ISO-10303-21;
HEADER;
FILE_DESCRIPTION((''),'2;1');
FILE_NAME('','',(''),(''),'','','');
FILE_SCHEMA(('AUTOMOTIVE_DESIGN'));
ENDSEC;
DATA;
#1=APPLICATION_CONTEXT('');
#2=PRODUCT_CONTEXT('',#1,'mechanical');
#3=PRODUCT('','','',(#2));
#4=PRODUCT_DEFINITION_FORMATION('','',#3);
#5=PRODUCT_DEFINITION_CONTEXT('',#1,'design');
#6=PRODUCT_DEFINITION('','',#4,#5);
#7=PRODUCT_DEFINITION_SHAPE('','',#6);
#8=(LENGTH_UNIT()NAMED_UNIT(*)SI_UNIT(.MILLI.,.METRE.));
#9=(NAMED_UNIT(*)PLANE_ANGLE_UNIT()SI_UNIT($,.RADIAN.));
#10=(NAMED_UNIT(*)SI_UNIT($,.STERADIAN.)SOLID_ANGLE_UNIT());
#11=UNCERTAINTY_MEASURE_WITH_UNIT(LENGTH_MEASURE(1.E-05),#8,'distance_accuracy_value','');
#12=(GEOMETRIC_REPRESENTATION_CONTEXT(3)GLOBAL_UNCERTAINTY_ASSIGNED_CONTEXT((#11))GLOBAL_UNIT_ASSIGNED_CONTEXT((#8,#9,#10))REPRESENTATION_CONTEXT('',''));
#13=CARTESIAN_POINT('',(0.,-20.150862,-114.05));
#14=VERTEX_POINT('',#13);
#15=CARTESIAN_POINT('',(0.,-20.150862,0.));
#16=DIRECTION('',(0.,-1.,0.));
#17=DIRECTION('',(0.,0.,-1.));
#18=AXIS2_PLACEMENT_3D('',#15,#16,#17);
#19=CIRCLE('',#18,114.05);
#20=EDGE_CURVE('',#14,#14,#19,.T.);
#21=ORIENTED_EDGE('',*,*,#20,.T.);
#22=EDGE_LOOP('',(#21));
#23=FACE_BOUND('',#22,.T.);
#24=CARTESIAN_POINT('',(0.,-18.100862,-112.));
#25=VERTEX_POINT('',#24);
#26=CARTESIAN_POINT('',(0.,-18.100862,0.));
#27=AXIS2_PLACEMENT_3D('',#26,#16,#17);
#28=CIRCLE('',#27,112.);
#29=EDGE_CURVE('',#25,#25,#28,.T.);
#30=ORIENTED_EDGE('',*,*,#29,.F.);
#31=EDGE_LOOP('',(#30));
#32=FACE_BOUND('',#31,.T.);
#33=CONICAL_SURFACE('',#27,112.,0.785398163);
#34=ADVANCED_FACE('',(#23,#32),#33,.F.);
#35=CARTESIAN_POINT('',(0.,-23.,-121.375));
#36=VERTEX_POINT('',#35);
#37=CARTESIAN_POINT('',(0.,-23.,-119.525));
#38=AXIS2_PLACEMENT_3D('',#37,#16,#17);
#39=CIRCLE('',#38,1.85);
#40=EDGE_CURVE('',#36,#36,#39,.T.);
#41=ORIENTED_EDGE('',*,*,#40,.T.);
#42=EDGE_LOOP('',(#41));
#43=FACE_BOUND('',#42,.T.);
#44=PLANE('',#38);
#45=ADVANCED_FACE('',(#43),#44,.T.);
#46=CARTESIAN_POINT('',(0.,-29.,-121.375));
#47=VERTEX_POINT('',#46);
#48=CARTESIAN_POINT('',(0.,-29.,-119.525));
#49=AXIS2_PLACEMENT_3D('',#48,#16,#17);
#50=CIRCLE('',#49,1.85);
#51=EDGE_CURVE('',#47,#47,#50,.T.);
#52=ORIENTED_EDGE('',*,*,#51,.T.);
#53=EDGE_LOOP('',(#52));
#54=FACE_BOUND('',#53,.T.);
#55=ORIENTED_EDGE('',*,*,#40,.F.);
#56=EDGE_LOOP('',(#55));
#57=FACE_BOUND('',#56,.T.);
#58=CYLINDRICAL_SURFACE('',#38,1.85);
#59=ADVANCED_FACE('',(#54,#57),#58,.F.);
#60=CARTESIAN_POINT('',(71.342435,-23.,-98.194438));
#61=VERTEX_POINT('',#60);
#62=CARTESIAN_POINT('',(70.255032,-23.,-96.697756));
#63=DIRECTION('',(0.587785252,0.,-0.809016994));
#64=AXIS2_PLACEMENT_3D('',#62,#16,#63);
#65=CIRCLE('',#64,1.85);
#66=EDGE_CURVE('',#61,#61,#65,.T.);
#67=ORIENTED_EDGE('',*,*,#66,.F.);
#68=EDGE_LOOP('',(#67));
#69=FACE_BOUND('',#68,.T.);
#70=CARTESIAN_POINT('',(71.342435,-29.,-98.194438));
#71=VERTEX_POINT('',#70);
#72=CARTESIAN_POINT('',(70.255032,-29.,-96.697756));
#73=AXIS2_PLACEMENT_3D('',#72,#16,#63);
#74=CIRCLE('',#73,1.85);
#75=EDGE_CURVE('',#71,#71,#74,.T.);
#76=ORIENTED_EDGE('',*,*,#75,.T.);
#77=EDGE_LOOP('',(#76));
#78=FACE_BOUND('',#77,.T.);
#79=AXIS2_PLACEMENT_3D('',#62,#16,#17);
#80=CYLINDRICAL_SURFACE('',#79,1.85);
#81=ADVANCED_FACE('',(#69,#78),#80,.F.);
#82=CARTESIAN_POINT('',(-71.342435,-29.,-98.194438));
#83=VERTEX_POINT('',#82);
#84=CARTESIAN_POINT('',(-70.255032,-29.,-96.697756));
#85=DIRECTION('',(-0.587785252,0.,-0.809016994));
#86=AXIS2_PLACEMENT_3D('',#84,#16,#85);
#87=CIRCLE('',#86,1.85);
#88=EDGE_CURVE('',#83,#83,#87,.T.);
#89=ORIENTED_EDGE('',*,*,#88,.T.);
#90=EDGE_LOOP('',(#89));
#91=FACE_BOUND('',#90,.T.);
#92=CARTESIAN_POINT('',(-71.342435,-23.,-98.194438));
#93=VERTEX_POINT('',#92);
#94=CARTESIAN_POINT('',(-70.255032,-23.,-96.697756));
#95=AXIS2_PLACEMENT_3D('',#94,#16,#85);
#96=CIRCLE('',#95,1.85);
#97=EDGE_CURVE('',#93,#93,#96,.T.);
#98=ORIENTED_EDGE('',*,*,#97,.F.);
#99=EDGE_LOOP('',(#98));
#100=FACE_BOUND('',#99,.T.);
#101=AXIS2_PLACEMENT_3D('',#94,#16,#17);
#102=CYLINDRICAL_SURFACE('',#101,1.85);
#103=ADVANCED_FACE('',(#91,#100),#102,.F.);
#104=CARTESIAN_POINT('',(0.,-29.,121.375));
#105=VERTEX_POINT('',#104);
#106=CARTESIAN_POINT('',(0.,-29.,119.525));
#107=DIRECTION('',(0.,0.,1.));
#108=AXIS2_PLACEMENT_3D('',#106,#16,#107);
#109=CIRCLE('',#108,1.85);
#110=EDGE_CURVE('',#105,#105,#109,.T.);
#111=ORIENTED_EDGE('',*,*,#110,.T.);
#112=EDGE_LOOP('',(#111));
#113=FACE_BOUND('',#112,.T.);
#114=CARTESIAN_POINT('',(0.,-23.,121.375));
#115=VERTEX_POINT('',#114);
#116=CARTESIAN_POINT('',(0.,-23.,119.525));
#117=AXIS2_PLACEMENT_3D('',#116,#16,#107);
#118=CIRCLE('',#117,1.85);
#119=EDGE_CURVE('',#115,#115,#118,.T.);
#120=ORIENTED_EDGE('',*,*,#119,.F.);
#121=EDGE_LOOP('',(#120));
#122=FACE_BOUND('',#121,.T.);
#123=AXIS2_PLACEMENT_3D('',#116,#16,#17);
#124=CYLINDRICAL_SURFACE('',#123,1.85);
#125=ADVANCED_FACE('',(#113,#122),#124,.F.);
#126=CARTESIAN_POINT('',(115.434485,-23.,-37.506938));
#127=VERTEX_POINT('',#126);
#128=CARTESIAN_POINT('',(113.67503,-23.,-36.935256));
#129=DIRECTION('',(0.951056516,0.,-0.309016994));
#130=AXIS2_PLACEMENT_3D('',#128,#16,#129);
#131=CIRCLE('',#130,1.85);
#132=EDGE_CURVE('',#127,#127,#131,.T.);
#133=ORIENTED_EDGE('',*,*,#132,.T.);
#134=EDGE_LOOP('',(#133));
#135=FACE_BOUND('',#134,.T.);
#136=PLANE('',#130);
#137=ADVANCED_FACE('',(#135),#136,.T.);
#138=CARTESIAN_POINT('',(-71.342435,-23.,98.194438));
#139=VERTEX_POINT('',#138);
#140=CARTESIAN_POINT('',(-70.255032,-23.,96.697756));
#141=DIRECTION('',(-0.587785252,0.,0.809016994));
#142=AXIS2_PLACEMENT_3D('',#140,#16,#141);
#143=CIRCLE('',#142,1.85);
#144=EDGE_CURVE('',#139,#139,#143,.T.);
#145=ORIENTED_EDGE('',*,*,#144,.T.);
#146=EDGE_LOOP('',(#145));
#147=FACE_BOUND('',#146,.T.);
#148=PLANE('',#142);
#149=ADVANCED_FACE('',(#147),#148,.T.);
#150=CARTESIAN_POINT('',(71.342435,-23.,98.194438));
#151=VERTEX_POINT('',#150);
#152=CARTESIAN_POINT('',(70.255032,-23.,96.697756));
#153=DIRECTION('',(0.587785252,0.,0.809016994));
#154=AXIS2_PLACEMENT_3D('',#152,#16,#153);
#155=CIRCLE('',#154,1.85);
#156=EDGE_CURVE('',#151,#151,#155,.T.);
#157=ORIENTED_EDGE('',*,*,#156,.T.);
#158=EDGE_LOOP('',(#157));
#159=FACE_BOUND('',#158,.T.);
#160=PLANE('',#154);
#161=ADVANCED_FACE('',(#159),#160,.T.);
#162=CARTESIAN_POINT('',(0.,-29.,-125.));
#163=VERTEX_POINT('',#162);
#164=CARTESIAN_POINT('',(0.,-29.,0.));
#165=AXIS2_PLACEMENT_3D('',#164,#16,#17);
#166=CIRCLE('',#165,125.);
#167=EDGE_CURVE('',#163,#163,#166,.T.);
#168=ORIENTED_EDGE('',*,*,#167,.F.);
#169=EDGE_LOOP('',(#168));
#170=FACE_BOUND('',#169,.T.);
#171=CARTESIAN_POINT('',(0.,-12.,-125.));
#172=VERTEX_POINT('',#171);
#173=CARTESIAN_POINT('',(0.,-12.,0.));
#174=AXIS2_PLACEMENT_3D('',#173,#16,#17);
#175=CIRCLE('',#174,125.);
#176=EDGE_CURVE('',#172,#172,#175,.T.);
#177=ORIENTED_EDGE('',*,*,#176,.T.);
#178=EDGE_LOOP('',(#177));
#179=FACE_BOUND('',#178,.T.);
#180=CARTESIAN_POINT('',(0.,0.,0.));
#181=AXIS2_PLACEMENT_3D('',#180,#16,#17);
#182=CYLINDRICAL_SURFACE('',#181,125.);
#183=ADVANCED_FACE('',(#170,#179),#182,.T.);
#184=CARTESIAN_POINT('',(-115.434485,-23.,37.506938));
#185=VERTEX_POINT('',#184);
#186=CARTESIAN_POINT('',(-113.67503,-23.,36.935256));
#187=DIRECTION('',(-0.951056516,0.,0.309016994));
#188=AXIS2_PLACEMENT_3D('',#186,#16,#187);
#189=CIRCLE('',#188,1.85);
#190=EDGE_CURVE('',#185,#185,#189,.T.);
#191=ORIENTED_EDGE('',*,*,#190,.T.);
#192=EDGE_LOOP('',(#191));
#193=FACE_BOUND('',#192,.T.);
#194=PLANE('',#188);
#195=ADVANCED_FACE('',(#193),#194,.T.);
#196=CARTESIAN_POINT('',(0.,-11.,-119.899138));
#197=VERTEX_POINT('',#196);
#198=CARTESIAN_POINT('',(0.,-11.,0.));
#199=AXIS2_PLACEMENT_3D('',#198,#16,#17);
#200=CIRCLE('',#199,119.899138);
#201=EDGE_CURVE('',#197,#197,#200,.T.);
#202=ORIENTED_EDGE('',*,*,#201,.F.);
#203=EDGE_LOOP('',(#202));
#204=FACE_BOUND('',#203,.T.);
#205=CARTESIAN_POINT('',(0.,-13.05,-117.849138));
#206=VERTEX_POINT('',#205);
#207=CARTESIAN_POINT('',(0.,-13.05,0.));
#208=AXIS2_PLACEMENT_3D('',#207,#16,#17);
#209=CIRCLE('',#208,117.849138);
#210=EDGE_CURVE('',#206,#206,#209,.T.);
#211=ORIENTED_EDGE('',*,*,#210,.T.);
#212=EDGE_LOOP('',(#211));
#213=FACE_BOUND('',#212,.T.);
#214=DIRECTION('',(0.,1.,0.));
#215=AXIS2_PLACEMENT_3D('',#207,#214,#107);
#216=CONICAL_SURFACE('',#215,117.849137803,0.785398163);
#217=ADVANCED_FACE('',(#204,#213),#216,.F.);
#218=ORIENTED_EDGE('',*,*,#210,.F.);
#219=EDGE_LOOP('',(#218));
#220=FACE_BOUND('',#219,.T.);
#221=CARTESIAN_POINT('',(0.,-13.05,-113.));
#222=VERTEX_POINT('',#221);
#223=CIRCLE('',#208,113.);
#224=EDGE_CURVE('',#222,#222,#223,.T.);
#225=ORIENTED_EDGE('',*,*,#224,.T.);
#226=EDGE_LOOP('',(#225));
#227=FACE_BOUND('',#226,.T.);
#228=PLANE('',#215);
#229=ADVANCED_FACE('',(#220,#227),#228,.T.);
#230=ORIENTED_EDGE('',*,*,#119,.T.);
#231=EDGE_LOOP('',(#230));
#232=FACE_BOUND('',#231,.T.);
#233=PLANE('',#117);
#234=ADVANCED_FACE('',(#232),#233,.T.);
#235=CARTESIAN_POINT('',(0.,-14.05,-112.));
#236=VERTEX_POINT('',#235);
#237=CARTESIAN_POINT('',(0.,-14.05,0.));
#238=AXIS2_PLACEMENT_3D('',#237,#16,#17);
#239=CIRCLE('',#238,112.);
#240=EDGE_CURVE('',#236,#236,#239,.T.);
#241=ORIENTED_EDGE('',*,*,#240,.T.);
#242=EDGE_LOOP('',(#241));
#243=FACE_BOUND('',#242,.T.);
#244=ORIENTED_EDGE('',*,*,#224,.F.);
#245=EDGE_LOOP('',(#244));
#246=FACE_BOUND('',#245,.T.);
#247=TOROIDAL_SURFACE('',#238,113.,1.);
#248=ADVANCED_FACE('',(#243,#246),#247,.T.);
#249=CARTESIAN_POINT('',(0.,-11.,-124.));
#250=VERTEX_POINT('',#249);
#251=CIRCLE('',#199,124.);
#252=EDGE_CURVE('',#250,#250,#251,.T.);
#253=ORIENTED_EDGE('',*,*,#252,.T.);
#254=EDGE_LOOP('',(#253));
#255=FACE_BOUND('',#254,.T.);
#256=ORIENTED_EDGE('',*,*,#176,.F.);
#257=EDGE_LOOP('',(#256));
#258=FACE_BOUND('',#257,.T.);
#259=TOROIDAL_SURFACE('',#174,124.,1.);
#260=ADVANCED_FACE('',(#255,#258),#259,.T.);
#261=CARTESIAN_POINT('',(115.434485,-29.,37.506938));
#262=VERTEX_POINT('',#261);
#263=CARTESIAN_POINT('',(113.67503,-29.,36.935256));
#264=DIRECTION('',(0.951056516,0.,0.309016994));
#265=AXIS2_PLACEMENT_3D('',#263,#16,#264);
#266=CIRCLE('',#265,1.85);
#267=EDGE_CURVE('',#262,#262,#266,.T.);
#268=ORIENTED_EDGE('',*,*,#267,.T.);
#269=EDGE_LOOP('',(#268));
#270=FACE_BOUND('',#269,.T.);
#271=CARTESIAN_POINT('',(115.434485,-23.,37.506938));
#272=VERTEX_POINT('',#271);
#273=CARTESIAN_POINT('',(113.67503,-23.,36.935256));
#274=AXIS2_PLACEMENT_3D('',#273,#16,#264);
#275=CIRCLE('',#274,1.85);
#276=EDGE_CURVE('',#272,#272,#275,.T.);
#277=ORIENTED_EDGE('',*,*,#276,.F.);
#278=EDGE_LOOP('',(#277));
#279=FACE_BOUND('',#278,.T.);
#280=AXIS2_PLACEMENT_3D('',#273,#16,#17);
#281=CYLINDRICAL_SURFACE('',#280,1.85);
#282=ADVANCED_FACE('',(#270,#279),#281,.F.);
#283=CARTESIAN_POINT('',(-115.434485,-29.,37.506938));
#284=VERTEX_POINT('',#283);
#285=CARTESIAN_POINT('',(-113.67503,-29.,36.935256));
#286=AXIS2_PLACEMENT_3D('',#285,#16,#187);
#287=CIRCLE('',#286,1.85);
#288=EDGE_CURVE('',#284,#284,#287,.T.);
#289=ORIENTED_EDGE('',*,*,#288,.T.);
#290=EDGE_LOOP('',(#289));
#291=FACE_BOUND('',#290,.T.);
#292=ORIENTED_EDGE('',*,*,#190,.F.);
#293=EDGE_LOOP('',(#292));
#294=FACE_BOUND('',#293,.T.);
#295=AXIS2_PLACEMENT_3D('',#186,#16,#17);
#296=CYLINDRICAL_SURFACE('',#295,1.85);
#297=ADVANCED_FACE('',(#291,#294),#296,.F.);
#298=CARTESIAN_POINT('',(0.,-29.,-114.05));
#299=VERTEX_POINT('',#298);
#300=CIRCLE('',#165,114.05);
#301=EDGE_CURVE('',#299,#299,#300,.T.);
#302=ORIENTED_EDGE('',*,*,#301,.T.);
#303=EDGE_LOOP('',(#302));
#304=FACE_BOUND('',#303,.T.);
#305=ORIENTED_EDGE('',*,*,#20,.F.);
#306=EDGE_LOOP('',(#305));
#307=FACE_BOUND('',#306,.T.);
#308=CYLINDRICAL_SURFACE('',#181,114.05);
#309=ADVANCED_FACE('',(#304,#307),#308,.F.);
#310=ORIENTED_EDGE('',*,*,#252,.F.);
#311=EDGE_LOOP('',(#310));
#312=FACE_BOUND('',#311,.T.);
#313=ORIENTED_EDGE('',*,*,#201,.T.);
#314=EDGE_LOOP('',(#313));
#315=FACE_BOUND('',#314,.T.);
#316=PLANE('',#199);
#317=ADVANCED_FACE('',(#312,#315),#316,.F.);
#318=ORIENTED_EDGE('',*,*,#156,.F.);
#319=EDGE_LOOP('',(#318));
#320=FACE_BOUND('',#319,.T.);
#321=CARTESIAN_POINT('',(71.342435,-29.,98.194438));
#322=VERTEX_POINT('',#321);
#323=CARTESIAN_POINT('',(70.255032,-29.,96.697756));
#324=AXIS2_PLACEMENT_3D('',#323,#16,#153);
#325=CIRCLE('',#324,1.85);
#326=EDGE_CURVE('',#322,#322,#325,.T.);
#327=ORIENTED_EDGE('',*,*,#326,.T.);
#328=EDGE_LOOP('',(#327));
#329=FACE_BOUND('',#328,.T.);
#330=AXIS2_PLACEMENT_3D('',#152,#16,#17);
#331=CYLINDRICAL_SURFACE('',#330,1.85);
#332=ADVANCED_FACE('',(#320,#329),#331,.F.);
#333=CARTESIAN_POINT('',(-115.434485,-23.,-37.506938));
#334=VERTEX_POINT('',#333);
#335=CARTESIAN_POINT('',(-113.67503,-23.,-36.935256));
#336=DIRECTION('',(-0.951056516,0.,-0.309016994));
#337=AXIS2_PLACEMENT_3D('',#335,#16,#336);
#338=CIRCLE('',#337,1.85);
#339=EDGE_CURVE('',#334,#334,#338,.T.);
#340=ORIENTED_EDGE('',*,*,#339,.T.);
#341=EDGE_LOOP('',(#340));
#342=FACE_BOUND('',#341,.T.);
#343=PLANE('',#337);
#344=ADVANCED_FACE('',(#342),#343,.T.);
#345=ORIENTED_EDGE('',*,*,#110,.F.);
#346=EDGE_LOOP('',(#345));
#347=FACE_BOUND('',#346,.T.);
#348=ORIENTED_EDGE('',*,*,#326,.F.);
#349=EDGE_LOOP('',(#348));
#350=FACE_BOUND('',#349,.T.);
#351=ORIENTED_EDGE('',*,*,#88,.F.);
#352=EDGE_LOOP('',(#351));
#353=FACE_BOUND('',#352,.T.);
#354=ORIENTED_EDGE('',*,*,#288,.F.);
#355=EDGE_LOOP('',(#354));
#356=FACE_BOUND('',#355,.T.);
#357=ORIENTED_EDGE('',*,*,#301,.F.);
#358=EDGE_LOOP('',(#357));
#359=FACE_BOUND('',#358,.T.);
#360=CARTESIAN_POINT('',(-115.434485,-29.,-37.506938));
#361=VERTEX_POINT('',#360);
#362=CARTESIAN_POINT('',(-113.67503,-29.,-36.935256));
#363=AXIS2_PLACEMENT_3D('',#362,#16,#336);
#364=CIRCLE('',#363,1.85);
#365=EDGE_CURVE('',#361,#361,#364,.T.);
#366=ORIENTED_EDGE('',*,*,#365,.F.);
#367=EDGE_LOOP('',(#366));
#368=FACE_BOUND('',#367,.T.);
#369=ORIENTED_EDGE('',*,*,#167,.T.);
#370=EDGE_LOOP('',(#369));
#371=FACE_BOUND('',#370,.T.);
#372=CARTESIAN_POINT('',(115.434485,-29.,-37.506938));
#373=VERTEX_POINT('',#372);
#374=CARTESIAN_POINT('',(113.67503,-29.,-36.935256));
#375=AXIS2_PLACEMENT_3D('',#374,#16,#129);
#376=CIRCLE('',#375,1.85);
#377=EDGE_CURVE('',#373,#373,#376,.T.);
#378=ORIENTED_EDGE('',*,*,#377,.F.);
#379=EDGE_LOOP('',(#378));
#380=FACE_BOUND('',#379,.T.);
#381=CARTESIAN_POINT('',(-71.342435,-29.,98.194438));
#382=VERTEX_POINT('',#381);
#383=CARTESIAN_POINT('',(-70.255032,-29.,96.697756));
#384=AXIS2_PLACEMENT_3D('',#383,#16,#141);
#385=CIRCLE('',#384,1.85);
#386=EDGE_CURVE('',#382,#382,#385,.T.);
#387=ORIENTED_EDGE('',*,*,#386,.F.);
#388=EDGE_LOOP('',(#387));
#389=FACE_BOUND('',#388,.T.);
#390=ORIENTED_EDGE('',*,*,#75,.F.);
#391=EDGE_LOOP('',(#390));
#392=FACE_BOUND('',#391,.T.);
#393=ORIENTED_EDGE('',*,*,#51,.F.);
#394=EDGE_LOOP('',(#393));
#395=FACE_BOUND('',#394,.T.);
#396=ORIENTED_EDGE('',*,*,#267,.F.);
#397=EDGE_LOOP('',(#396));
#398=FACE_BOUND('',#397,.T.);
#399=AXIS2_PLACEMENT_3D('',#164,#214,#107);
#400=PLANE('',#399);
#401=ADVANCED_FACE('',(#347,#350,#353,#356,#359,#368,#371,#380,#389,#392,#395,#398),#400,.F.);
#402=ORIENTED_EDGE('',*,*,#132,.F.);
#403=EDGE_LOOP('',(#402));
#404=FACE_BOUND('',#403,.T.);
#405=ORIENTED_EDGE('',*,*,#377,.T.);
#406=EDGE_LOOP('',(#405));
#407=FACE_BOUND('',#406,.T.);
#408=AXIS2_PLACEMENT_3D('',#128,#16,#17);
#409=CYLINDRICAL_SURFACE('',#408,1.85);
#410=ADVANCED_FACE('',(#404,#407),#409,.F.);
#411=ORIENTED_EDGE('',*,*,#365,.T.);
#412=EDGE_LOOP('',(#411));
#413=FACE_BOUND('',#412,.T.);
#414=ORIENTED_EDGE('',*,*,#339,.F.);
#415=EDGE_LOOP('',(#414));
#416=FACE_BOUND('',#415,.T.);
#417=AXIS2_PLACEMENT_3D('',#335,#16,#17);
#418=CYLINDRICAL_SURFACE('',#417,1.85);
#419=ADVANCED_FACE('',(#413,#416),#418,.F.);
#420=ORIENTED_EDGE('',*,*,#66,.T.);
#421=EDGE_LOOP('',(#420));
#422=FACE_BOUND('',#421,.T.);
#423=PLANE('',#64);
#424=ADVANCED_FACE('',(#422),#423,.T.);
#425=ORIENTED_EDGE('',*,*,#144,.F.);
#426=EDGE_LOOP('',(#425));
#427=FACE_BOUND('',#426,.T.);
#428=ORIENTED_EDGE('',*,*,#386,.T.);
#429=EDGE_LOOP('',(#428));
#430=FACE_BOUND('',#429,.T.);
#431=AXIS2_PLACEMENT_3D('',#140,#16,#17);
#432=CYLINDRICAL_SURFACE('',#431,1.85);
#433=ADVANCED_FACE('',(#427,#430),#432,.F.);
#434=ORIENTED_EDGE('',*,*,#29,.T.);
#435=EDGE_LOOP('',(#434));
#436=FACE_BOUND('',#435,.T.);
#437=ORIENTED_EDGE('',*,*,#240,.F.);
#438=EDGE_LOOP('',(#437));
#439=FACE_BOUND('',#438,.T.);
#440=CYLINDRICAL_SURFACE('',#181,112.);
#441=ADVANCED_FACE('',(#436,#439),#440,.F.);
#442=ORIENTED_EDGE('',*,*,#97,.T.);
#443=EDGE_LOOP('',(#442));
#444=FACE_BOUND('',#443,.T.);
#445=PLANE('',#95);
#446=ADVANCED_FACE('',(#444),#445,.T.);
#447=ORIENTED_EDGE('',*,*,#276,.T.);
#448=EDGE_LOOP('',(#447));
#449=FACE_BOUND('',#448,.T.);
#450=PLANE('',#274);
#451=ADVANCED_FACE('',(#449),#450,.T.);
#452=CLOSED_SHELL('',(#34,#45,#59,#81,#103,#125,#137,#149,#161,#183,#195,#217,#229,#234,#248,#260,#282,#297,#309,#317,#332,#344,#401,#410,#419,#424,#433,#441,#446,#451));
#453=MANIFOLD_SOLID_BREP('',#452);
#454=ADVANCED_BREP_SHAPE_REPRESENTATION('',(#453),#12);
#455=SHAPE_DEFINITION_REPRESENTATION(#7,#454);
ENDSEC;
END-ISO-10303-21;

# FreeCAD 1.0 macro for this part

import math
import FreeCAD as App
import Part
import Sketcher

V = App.Vector
Q = App.Units.Quantity

doc = App.newDocument("Part")
body = doc.addObject("PartDesign::Body", "Body")

# Sketch on XY plane
sketch1 = doc.addObject("Sketcher::SketchObject", "Sketch")
body.addObject(sketch1)
sketch1.AttachmentSupport = (doc.XY_Plane, [""])
sketch1.MapMode = "FlatFace"
sketch1.addGeometry([
    Part.LineSegment(V(-113, -13.1, 0), V(-117.8, -13.1, 0)),  # 0
    Part.LineSegment(V(-117.8, -13.1, 0), V(-119.9, -11, 0)),  # 1
    Part.LineSegment(V(-119.9, -11, 0), V(-124, -11, 0)),  # 2
    Part.ArcOfCircle(Part.Circle(V(-124, -12, 0), V(0, 0, 1), 1), math.radians(90), math.radians(180)),  # 3
    Part.LineSegment(V(-125, -12, 0), V(-125, -29, 0)),  # 4
    Part.LineSegment(V(-125, -29, 0), V(-114, -29, 0)),  # 5
    Part.LineSegment(V(-114, -29, 0), V(-114, -20.2, 0)),  # 6
    Part.LineSegment(V(-114, -20.2, 0), V(-112, -18.1, 0)),  # 7
    Part.LineSegment(V(-112, -18.1, 0), V(-112, -14.1, 0)),  # 8
    Part.ArcOfCircle(Part.Circle(V(-113, -14.1, 0), V(0, 0, 1), 1), math.radians(0), math.radians(90)),  # 9
], False)
sketch1.addConstraint([
    Sketcher.Constraint("Coincident", 0, 2, 1, 1),
    Sketcher.Constraint("Coincident", 1, 2, 2, 1),
    Sketcher.Constraint("Tangent", 2, 2, 3, 1),
    Sketcher.Constraint("Tangent", 3, 2, 4, 1),
    Sketcher.Constraint("Coincident", 4, 2, 5, 1),
    Sketcher.Constraint("Coincident", 5, 2, 6, 1),
    Sketcher.Constraint("Coincident", 6, 2, 7, 1),
    Sketcher.Constraint("Coincident", 7, 2, 8, 1),
    Sketcher.Constraint("Tangent", 8, 2, 9, 1),
    Sketcher.Constraint("Tangent", 9, 2, 0, 1),
    Sketcher.Constraint("Horizontal", 0),
    Sketcher.Constraint("Horizontal", 2),
    Sketcher.Constraint("Vertical", 4),
    Sketcher.Constraint("Horizontal", 5),
    Sketcher.Constraint("Vertical", 6),
    Sketcher.Constraint("Vertical", 8),
    Sketcher.Constraint("Equal", 3, 9),
    Sketcher.Constraint("Perpendicular", 1, 7),
    Sketcher.Constraint("Equal", 1, 7),
    Sketcher.Constraint("Radius", 3, Q("1 mm")),
    Sketcher.Constraint("DistanceY", 4, 2, 4, 1, Q("17 mm")),
    Sketcher.Constraint("Angle", 1, Q("135 deg")),
    Sketcher.Constraint("DistanceX", 3, 3, -1, 1, Q("124 mm")),
    Sketcher.Constraint("DistanceY", 3, 3, -1, 1, Q("12 mm")),
    Sketcher.Constraint("DistanceX", 9, 3, -1, 1, Q("113 mm")),
    Sketcher.Constraint("DistanceX", 5, 1, 5, 2, Q("10.95 mm")),
    Sketcher.Constraint("DistanceX", 0, 2, 0, 1, Q("4.849138 mm")),
    Sketcher.Constraint("DistanceY", 6, 1, 6, 2, Q("8.849138 mm")),
])
revolution = doc.addObject("PartDesign::Revolution", "Revolution")
body.addObject(revolution)
revolution.Profile = sketch1
revolution.ReferenceAxis = (sketch1, ["V_Axis"])
revolution.Angle = 360

# Sketch on XZ plane
sketch2 = doc.addObject("Sketcher::SketchObject", "Sketch001")
body.addObject(sketch2)
sketch2.AttachmentSupport = (doc.XZ_Plane, [""])
sketch2.MapMode = "FlatFace"
sketch2.AttachmentOffset = App.Placement(V(0, 0, 29), App.Rotation())
sketch2.addGeometry(Part.Circle(V(0, -119.5, 0), V(0, 0, 1), 1.9), False)
sketch2.addConstraint([
    Sketcher.Constraint("PointOnObject", 0, 3, -2),
    Sketcher.Constraint("Diameter", 0, Q("3.7 mm")),
    Sketcher.Constraint("DistanceY", 0, 3, -1, 1, Q("119.525 mm")),
])
pocket1 = doc.addObject("PartDesign::Pocket", "Pocket")
body.addObject(pocket1)
pocket1.Profile = sketch2
pocket1.Length = 6
doc.recompute()

polarpattern = doc.addObject("PartDesign::PolarPattern", "PolarPattern")
body.addObject(polarpattern)
polarpattern.Originals = [pocket1]
polarpattern.Axis = (doc.Y_Axis, [""])
polarpattern.Angle = 360
polarpattern.Occurrences = 10
body.Tip = polarpattern

doc.recompute()
